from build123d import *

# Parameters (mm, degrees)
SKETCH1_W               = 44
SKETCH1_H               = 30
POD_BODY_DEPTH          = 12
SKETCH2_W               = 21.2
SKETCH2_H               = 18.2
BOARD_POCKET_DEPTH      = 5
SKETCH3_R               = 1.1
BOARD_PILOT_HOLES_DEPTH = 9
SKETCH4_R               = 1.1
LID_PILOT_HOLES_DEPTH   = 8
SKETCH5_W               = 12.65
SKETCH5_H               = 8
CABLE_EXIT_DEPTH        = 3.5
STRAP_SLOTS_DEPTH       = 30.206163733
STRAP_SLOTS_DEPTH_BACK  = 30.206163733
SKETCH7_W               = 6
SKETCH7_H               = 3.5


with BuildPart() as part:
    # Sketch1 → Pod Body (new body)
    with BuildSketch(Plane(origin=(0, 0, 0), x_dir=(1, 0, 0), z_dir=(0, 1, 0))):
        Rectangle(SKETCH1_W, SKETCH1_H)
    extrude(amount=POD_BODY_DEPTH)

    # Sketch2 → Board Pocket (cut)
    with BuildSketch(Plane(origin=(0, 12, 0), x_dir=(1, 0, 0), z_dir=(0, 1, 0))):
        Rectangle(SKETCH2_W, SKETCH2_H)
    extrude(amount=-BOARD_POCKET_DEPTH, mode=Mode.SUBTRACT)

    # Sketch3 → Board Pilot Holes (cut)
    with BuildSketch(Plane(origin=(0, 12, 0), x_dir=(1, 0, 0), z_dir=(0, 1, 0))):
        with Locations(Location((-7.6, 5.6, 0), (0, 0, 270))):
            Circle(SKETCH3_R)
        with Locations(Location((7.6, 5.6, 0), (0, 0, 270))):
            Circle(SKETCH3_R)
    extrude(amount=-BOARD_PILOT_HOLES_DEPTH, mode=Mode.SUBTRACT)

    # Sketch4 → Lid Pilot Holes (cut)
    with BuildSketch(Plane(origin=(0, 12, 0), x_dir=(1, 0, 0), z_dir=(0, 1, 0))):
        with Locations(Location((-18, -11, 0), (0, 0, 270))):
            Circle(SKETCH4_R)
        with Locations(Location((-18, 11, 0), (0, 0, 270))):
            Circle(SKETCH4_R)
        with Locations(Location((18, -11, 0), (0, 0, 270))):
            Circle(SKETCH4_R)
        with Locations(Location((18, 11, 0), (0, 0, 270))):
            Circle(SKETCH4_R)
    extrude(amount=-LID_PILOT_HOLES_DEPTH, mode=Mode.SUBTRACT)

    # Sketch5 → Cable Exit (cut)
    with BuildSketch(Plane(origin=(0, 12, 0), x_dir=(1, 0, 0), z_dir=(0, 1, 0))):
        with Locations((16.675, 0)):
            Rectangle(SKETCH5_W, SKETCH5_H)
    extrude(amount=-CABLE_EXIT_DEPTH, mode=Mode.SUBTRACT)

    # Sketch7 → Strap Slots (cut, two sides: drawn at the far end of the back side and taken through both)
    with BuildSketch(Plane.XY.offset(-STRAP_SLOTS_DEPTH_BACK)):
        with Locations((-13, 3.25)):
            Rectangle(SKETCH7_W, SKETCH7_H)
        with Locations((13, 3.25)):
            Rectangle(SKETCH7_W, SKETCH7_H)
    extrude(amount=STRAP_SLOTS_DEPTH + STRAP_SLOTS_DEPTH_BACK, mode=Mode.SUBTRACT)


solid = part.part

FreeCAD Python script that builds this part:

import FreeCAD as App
import Part
import Sketcher
Q = App.Units.Quantity


def add_polygon(sketch, points):
    """Adds a closed chain of lines whose ends are joined by coincident constraints."""
    first, n = sketch.GeometryCount, len(points)
    for a, b in zip(points, points[1:] + points[:1]):
        sketch.addGeometry(Part.LineSegment(App.Vector(*a, 0), App.Vector(*b, 0)), False)
    for i in range(n):
        sketch.addConstraint(Sketcher.Constraint("Coincident", first + i, 2, first + (i + 1) % n, 1))

doc = App.newDocument("Part")
body = doc.addObject("PartDesign::Body", "Body")

# Sketch on XZ plane
sketch1 = doc.addObject("Sketcher::SketchObject", "Sketch")
body.addObject(sketch1)
sketch1.AttachmentSupport = (doc.XZ_Plane, [""])
sketch1.MapMode = "FlatFace"
add_polygon(sketch1, [(-22, -15), (-22, 15), (22, 15), (22, -15)])  # lines 0-3
sketch1.addConstraint(Sketcher.Constraint("Vertical", 0))
sketch1.addConstraint(Sketcher.Constraint("Horizontal", 1))
sketch1.addConstraint(Sketcher.Constraint("Vertical", 2))
sketch1.addConstraint(Sketcher.Constraint("Horizontal", 3))
sketch1.addConstraint(Sketcher.Constraint("Symmetric", 0, 2, 2, 2, -1, 1))
sketch1.addConstraint(Sketcher.Constraint("DistanceX", 1, 1, 1, 2, Q("44 mm")))
sketch1.addConstraint(Sketcher.Constraint("DistanceY", 0, 1, 0, 2, Q("30 mm")))
pad1 = doc.addObject("PartDesign::Pad", "Pad")
body.addObject(pad1)
pad1.Profile = sketch1
pad1.Length = 12
pad1.Reversed = True

# Sketch on XZ plane
sketch2 = doc.addObject("Sketcher::SketchObject", "Sketch001")
body.addObject(sketch2)
sketch2.AttachmentSupport = (doc.XZ_Plane, [""])
sketch2.MapMode = "FlatFace"
sketch2.AttachmentOffset = App.Placement(App.Vector(0, 0, -12), App.Rotation())
add_polygon(sketch2, [(-11, -9), (-11, 9), (11, 9), (11, -9)])  # lines 0-3
sketch2.addConstraint(Sketcher.Constraint("Vertical", 0))
sketch2.addConstraint(Sketcher.Constraint("Horizontal", 1))
sketch2.addConstraint(Sketcher.Constraint("Vertical", 2))
sketch2.addConstraint(Sketcher.Constraint("Horizontal", 3))
sketch2.addConstraint(Sketcher.Constraint("Symmetric", 0, 2, 2, 2, -1, 1))
sketch2.addConstraint(Sketcher.Constraint("DistanceX", 1, 1, 1, 2, Q("21.2 mm")))
sketch2.addConstraint(Sketcher.Constraint("DistanceY", 0, 1, 0, 2, Q("18.2 mm")))
pocket1 = doc.addObject("PartDesign::Pocket", "Pocket")
body.addObject(pocket1)
pocket1.Profile = sketch2
pocket1.Length = 5
pocket1.Reversed = True

# Sketch on XZ plane
sketch3 = doc.addObject("Sketcher::SketchObject", "Sketch002")
body.addObject(sketch3)
sketch3.AttachmentSupport = (doc.XZ_Plane, [""])
sketch3.MapMode = "FlatFace"
sketch3.AttachmentOffset = App.Placement(App.Vector(0, 0, -12), App.Rotation())
sketch3.addGeometry(Part.Circle(App.Vector(-7.6, -5.6, 0), App.Vector(0, 0, 1), 1.1), False)
sketch3.addGeometry(Part.Circle(App.Vector(7.6, -5.6, 0), App.Vector(0, 0, 1), 1.1), False)
sketch3.addConstraint(Sketcher.Constraint("Equal", 0, 1))
sketch3.addConstraint(Sketcher.Constraint("Symmetric", 0, 3, 1, 3, -2))
sketch3.addConstraint(Sketcher.Constraint("Diameter", 0, Q("2.2 mm")))
sketch3.addConstraint(Sketcher.Constraint("DistanceX", 0, 3, -1, 1, Q("7.6 mm")))
sketch3.addConstraint(Sketcher.Constraint("DistanceY", 0, 3, -1, 1, Q("5.6 mm")))
pocket2 = doc.addObject("PartDesign::Pocket", "Pocket001")
body.addObject(pocket2)
pocket2.Profile = sketch3
pocket2.Length = 9
pocket2.Reversed = True

# Sketch on XZ plane
sketch4 = doc.addObject("Sketcher::SketchObject", "Sketch003")
body.addObject(sketch4)
sketch4.AttachmentSupport = (doc.XZ_Plane, [""])
sketch4.MapMode = "FlatFace"
sketch4.AttachmentOffset = App.Placement(App.Vector(0, 0, -12), App.Rotation())
sketch4.addGeometry(Part.Circle(App.Vector(-18, 11, 0), App.Vector(0, 0, 1), 1.1), False)
sketch4.addGeometry(Part.Circle(App.Vector(-18, -11, 0), App.Vector(0, 0, 1), 1.1), False)
sketch4.addGeometry(Part.Circle(App.Vector(18, 11, 0), App.Vector(0, 0, 1), 1.1), False)
sketch4.addGeometry(Part.Circle(App.Vector(18, -11, 0), App.Vector(0, 0, 1), 1.1), False)
sketch4.addConstraint(Sketcher.Constraint("Equal", 0, 1))
sketch4.addConstraint(Sketcher.Constraint("Equal", 1, 2))
sketch4.addConstraint(Sketcher.Constraint("Equal", 2, 3))
sketch4.addConstraint(Sketcher.Constraint("Symmetric", 1, 3, 2, 3, -1, 1))
sketch4.addConstraint(Sketcher.Constraint("Symmetric", 0, 3, 3, 3, -1, 1))
sketch4.addConstraint(Sketcher.Constraint("Symmetric", 0, 3, 2, 3, -2))
sketch4.addConstraint(Sketcher.Constraint("Diameter", 0, Q("2.2 mm")))
sketch4.addConstraint(Sketcher.Constraint("DistanceX", 0, 3, -1, 1, Q("18 mm")))
sketch4.addConstraint(Sketcher.Constraint("DistanceY", -1, 1, 0, 3, Q("11 mm")))
pocket3 = doc.addObject("PartDesign::Pocket", "Pocket002")
body.addObject(pocket3)
pocket3.Profile = sketch4
pocket3.Length = 8
pocket3.Reversed = True

# Sketch on XZ plane
sketch5 = doc.addObject("Sketcher::SketchObject", "Sketch004")
body.addObject(sketch5)
sketch5.AttachmentSupport = (doc.XZ_Plane, [""])
sketch5.MapMode = "FlatFace"
sketch5.AttachmentOffset = App.Placement(App.Vector(0, 0, -12), App.Rotation())
add_polygon(sketch5, [(10, -4), (10, 4), (23, 4), (23, -4)])  # lines 0-3
sketch5.addConstraint(Sketcher.Constraint("Vertical", 0))
sketch5.addConstraint(Sketcher.Constraint("Horizontal", 1))
sketch5.addConstraint(Sketcher.Constraint("Vertical", 2))
sketch5.addConstraint(Sketcher.Constraint("Horizontal", 3))
sketch5.addConstraint(Sketcher.Constraint("DistanceY", 0, 1, 0, 2, Q("8 mm")))
sketch5.addConstraint(Sketcher.Constraint("DistanceY", -1, 1, 0, 2, Q("4 mm")))
sketch5.addConstraint(Sketcher.Constraint("DistanceX", -1, 1, 1, 2, Q("23 mm")))
sketch5.addConstraint(Sketcher.Constraint("DistanceX", 1, 1, 1, 2, Q("12.65 mm")))
pocket4 = doc.addObject("PartDesign::Pocket", "Pocket003")
body.addObject(pocket4)
pocket4.Profile = sketch5
pocket4.Length = 3.5
pocket4.Reversed = True

# Sketch on XY plane
sketch6 = doc.addObject("Sketcher::SketchObject", "Sketch005")
body.addObject(sketch6)
sketch6.AttachmentSupport = (doc.XY_Plane, [""])
sketch6.MapMode = "FlatFace"
add_polygon(sketch6, [(-16, 5), (-16, 1.5), (-10, 1.5), (-10, 5)])  # lines 0-3
add_polygon(sketch6, [(10, 5), (10, 1.5), (16, 1.5), (16, 5)])  # lines 4-7
sketch6.addConstraint(Sketcher.Constraint("Vertical", 0))
sketch6.addConstraint(Sketcher.Constraint("Horizontal", 1))
sketch6.addConstraint(Sketcher.Constraint("Vertical", 2))
sketch6.addConstraint(Sketcher.Constraint("Horizontal", 3))
sketch6.addConstraint(Sketcher.Constraint("Vertical", 4))
sketch6.addConstraint(Sketcher.Constraint("Horizontal", 5))
sketch6.addConstraint(Sketcher.Constraint("Vertical", 6))
sketch6.addConstraint(Sketcher.Constraint("Horizontal", 7))
sketch6.addConstraint(Sketcher.Constraint("Symmetric", 1, 2, 4, 2, -2))
sketch6.addConstraint(Sketcher.Constraint("Symmetric", 3, 2, 6, 2, -2))
sketch6.addConstraint(Sketcher.Constraint("DistanceX", 1, 1, 1, 2, Q("6 mm")))
sketch6.addConstraint(Sketcher.Constraint("DistanceY", 0, 2, 0, 1, Q("3.5 mm")))
sketch6.addConstraint(Sketcher.Constraint("DistanceX", 0, 2, -1, 1, Q("16 mm")))
sketch6.addConstraint(Sketcher.Constraint("DistanceY", -1, 1, 2, 2, Q("5 mm")))
pocket5 = doc.addObject("PartDesign::Pocket", "Pocket004")
body.addObject(pocket5)
pocket5.Profile = sketch6
pocket5.Type = "ThroughAll"
pocket5.Midplane = True

doc.recompute()
